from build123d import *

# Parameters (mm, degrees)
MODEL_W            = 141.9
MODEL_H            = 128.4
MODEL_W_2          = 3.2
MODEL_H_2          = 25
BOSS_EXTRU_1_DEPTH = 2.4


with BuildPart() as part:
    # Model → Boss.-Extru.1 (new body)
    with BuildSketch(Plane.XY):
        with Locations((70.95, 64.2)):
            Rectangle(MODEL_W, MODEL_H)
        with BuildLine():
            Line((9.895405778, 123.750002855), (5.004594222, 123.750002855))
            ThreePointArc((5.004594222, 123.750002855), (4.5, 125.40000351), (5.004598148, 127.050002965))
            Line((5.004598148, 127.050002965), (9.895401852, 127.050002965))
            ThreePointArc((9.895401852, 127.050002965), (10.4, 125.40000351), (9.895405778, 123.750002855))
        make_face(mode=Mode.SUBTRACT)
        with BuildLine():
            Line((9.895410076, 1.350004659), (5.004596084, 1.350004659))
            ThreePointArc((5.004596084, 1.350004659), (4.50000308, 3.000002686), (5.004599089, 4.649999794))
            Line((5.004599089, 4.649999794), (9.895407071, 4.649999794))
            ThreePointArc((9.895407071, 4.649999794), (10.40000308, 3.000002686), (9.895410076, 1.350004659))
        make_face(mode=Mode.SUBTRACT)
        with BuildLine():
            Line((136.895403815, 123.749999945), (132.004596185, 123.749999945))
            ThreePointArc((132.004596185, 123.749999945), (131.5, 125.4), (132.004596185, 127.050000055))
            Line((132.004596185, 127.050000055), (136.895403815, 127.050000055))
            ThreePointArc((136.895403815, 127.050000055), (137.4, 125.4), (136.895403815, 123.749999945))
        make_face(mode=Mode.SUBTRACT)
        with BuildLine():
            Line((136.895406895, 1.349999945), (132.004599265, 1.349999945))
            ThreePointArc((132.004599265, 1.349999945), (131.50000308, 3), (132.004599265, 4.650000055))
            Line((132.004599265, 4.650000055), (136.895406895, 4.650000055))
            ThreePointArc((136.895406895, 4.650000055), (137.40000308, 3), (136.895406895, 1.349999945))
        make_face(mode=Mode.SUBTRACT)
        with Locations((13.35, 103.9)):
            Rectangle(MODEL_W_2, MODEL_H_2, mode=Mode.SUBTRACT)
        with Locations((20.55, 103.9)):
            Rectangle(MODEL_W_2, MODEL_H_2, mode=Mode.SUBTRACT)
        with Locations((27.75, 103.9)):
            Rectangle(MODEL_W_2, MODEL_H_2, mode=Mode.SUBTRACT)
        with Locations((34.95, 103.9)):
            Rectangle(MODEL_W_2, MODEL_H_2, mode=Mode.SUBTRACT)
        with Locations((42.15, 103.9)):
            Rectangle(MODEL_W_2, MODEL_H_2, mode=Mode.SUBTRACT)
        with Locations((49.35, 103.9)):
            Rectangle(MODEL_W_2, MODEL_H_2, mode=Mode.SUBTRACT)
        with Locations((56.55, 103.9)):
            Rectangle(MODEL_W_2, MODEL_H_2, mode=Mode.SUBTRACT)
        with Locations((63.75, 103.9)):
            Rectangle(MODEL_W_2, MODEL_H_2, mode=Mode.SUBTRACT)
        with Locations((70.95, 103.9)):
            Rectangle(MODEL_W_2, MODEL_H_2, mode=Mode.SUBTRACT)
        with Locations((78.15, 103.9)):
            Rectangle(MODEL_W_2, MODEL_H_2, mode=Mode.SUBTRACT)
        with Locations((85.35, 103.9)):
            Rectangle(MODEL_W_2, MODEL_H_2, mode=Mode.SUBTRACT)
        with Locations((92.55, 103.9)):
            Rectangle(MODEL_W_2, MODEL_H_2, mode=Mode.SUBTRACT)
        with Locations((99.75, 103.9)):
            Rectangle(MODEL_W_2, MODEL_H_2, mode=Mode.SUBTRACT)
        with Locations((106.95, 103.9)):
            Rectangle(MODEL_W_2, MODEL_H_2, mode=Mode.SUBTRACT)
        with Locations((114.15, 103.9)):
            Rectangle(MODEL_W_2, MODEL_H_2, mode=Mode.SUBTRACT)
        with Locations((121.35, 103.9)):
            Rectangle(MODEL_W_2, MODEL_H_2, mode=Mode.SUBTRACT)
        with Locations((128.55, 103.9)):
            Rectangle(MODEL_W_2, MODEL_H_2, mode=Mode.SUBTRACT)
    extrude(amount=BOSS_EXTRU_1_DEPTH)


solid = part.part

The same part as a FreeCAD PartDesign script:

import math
import FreeCAD as App
import Part
import Sketcher

V = App.Vector

doc = App.newDocument("Part")
body = doc.addObject("PartDesign::Body", "Body")

# Sketch on XY plane
sketch1 = body.newObject("Sketcher::SketchObject", "Sketch")
sketch1.AttachmentSupport = (doc.getObject("XY_Plane"), [""])
sketch1.MapMode = "FlatFace"
sketch1.addGeometry([
    Part.LineSegment(V(0, 128.4, 0), V(0, 0, 0)),  # 0
    Part.LineSegment(V(0, 0, 0), V(141.9, 0, 0)),  # 1
    Part.LineSegment(V(141.9, 0, 0), V(141.9, 128.4, 0)),  # 2
    Part.LineSegment(V(141.9, 128.4, 0), V(0, 128.4, 0)),  # 3
    Part.ArcOfCircle(Part.Circle(V(7.5, 3, 0), V(0, 0, 1), 3), math.radians(-34), math.radians(34)),  # 4
    Part.LineSegment(V(9.9, 1.4, 0), V(5, 1.4, 0)),  # 5
    Part.ArcOfCircle(Part.Circle(V(7.5, 3, 0), V(0, 0, 1), 3), math.radians(146), math.radians(214)),  # 6
    Part.LineSegment(V(5, 4.6, 0), V(9.9, 4.6, 0)),  # 7
    Part.ArcOfCircle(Part.Circle(V(134.5, 3, 0), V(0, 0, 1), 3), math.radians(-34), math.radians(34)),  # 8
    Part.LineSegment(V(136.9, 1.3, 0), V(132, 1.3, 0)),  # 9
    Part.ArcOfCircle(Part.Circle(V(134.5, 3, 0), V(0, 0, 1), 3), math.radians(146), math.radians(214)),  # 10
    Part.LineSegment(V(132, 4.7, 0), V(136.9, 4.7, 0)),  # 11
    Part.LineSegment(V(14.9, 91.4, 0), V(11.8, 91.4, 0)),  # 12
    Part.LineSegment(V(11.8, 91.4, 0), V(11.8, 116.4, 0)),  # 13
    Part.LineSegment(V(11.8, 116.4, 0), V(14.9, 116.4, 0)),  # 14
    Part.LineSegment(V(14.9, 116.4, 0), V(14.9, 91.4, 0)),  # 15
    Part.LineSegment(V(22.1, 91.4, 0), V(18.9, 91.4, 0)),  # 16
    Part.LineSegment(V(18.9, 91.4, 0), V(18.9, 116.4, 0)),  # 17
    Part.LineSegment(V(18.9, 116.4, 0), V(22.1, 116.4, 0)),  # 18
    Part.LineSegment(V(22.1, 116.4, 0), V(22.1, 91.4, 0)),  # 19
    Part.LineSegment(V(29.4, 91.4, 0), V(26.1, 91.4, 0)),  # 20
    Part.LineSegment(V(26.1, 91.4, 0), V(26.1, 116.4, 0)),  # 21
    Part.LineSegment(V(26.1, 116.4, 0), V(29.4, 116.4, 0)),  # 22
    Part.LineSegment(V(29.4, 116.4, 0), V(29.4, 91.4, 0)),  # 23
    Part.LineSegment(V(36.5, 91.4, 0), V(33.4, 91.4, 0)),  # 24
    Part.LineSegment(V(33.4, 91.4, 0), V(33.4, 116.4, 0)),  # 25
    Part.LineSegment(V(33.4, 116.4, 0), V(36.5, 116.4, 0)),  # 26
    Part.LineSegment(V(36.5, 116.4, 0), V(36.5, 91.4, 0)),  # 27
    Part.ArcOfCircle(Part.Circle(V(7.5, 125.4, 0), V(0, 0, 1), 3), math.radians(-34), math.radians(34)),  # 28
    Part.LineSegment(V(9.9, 123.8, 0), V(5, 123.8, 0)),  # 29
    Part.ArcOfCircle(Part.Circle(V(7.5, 125.4, 0), V(0, 0, 1), 3), math.radians(146), math.radians(214)),  # 30
    Part.LineSegment(V(5, 127.1, 0), V(9.9, 127.1, 0)),  # 31
    Part.LineSegment(V(43.8, 91.4, 0), V(40.5, 91.4, 0)),  # 32
    Part.LineSegment(V(40.5, 91.4, 0), V(40.5, 116.4, 0)),  # 33
    Part.LineSegment(V(40.5, 116.4, 0), V(43.8, 116.4, 0)),  # 34
    Part.LineSegment(V(43.8, 116.4, 0), V(43.8, 91.4, 0)),  # 35
    Part.LineSegment(V(51, 91.4, 0), V(47.8, 91.4, 0)),  # 36
    Part.LineSegment(V(47.8, 91.4, 0), V(47.8, 116.4, 0)),  # 37
    Part.LineSegment(V(47.8, 116.4, 0), V(51, 116.4, 0)),  # 38
    Part.LineSegment(V(51, 116.4, 0), V(51, 91.4, 0)),  # 39
    Part.LineSegment(V(58.1, 91.4, 0), V(55, 91.4, 0)),  # 40
    Part.LineSegment(V(55, 91.4, 0), V(55, 116.4, 0)),  # 41
    Part.LineSegment(V(55, 116.4, 0), V(58.1, 116.4, 0)),  # 42
    Part.LineSegment(V(58.1, 116.4, 0), V(58.1, 91.4, 0)),  # 43
    Part.LineSegment(V(65.3, 91.4, 0), V(62.1, 91.4, 0)),  # 44
    Part.LineSegment(V(62.1, 91.4, 0), V(62.1, 116.4, 0)),  # 45
    Part.LineSegment(V(62.1, 116.4, 0), V(65.3, 116.4, 0)),  # 46
    Part.LineSegment(V(65.3, 116.4, 0), V(65.3, 91.4, 0)),  # 47
    Part.LineSegment(V(72.5, 91.4, 0), V(69.3, 91.4, 0)),  # 48
    Part.LineSegment(V(69.3, 91.4, 0), V(69.3, 116.4, 0)),  # 49
    Part.LineSegment(V(69.3, 116.4, 0), V(72.5, 116.4, 0)),  # 50
    Part.LineSegment(V(72.5, 116.4, 0), V(72.5, 91.4, 0)),  # 51
    Part.LineSegment(V(79.8, 91.4, 0), V(76.5, 91.4, 0)),  # 52
    Part.LineSegment(V(76.5, 91.4, 0), V(76.5, 116.4, 0)),  # 53
    Part.LineSegment(V(76.5, 116.4, 0), V(79.8, 116.4, 0)),  # 54
    Part.LineSegment(V(79.8, 116.4, 0), V(79.8, 91.4, 0)),  # 55
    Part.LineSegment(V(87, 91.4, 0), V(83.8, 91.4, 0)),  # 56
    Part.LineSegment(V(83.8, 91.4, 0), V(83.8, 116.4, 0)),  # 57
    Part.LineSegment(V(83.8, 116.4, 0), V(87, 116.4, 0)),  # 58
    Part.LineSegment(V(87, 116.4, 0), V(87, 91.4, 0)),  # 59
    Part.LineSegment(V(94.2, 91.4, 0), V(91, 91.4, 0)),  # 60
    Part.LineSegment(V(91, 91.4, 0), V(91, 116.4, 0)),  # 61
    Part.LineSegment(V(91, 116.4, 0), V(94.2, 116.4, 0)),  # 62
    Part.LineSegment(V(94.2, 116.4, 0), V(94.2, 91.4, 0)),  # 63
    Part.LineSegment(V(101.3, 91.4, 0), V(98.2, 91.4, 0)),  # 64
    Part.LineSegment(V(98.2, 91.4, 0), V(98.2, 116.4, 0)),  # 65
    Part.LineSegment(V(98.2, 116.4, 0), V(101.3, 116.4, 0)),  # 66
    Part.LineSegment(V(101.3, 116.4, 0), V(101.3, 91.4, 0)),  # 67
    Part.LineSegment(V(108.5, 91.4, 0), V(105.3, 91.4, 0)),  # 68
    Part.LineSegment(V(105.3, 91.4, 0), V(105.3, 116.4, 0)),  # 69
    Part.LineSegment(V(105.3, 116.4, 0), V(108.5, 116.4, 0)),  # 70
    Part.LineSegment(V(108.5, 116.4, 0), V(108.5, 91.4, 0)),  # 71
    Part.LineSegment(V(115.8, 91.4, 0), V(112.5, 91.4, 0)),  # 72
    Part.LineSegment(V(112.5, 91.4, 0), V(112.5, 116.4, 0)),  # 73
    Part.LineSegment(V(112.5, 116.4, 0), V(115.8, 116.4, 0)),  # 74
    Part.LineSegment(V(115.8, 116.4, 0), V(115.8, 91.4, 0)),  # 75
    Part.LineSegment(V(123, 91.4, 0), V(119.8, 91.4, 0)),  # 76
    Part.LineSegment(V(119.8, 91.4, 0), V(119.8, 116.4, 0)),  # 77
    Part.LineSegment(V(119.8, 116.4, 0), V(123, 116.4, 0)),  # 78
    Part.LineSegment(V(123, 116.4, 0), V(123, 91.4, 0)),  # 79
    Part.LineSegment(V(130.2, 91.4, 0), V(127, 91.4, 0)),  # 80
    Part.LineSegment(V(127, 91.4, 0), V(127, 116.4, 0)),  # 81
    Part.LineSegment(V(127, 116.4, 0), V(130.2, 116.4, 0)),  # 82
    Part.LineSegment(V(130.2, 116.4, 0), V(130.2, 91.4, 0)),  # 83
    Part.ArcOfCircle(Part.Circle(V(134.4, 125.4, 0), V(0, 0, 1), 3), math.radians(-34), math.radians(34)),  # 84
    Part.LineSegment(V(136.9, 123.7, 0), V(132, 123.7, 0)),  # 85
    Part.ArcOfCircle(Part.Circle(V(134.4, 125.4, 0), V(0, 0, 1), 3), math.radians(146), math.radians(214)),  # 86
    Part.LineSegment(V(132, 127.1, 0), V(136.9, 127.1, 0)),  # 87
], False)
sketch1.addConstraint([
    Sketcher.Constraint("Coincident", 0, 2, 1, 1),
    Sketcher.Constraint("Coincident", 1, 2, 2, 1),
    Sketcher.Constraint("Coincident", 2, 2, 3, 1),
    Sketcher.Constraint("Coincident", 3, 2, 0, 1),
    Sketcher.Constraint("Coincident", 4, 1, 5, 1),
    Sketcher.Constraint("Coincident", 5, 2, 6, 2),
    Sketcher.Constraint("Coincident", 6, 1, 7, 1),
    Sketcher.Constraint("Coincident", 7, 2, 4, 2),
    Sketcher.Constraint("Coincident", 8, 1, 9, 1),
    Sketcher.Constraint("Coincident", 9, 2, 10, 2),
    Sketcher.Constraint("Coincident", 10, 1, 11, 1),
    Sketcher.Constraint("Coincident", 11, 2, 8, 2),
    Sketcher.Constraint("Coincident", 12, 2, 13, 1),
    Sketcher.Constraint("Coincident", 13, 2, 14, 1),
    Sketcher.Constraint("Coincident", 14, 2, 15, 1),
    Sketcher.Constraint("Coincident", 15, 2, 12, 1),
    Sketcher.Constraint("Coincident", 16, 2, 17, 1),
    Sketcher.Constraint("Coincident", 17, 2, 18, 1),
    Sketcher.Constraint("Coincident", 18, 2, 19, 1),
    Sketcher.Constraint("Coincident", 19, 2, 16, 1),
    Sketcher.Constraint("Coincident", 20, 2, 21, 1),
    Sketcher.Constraint("Coincident", 21, 2, 22, 1),
    Sketcher.Constraint("Coincident", 22, 2, 23, 1),
    Sketcher.Constraint("Coincident", 23, 2, 20, 1),
    Sketcher.Constraint("Coincident", 24, 2, 25, 1),
    Sketcher.Constraint("Coincident", 25, 2, 26, 1),
    Sketcher.Constraint("Coincident", 26, 2, 27, 1),
    Sketcher.Constraint("Coincident", 27, 2, 24, 1),
    Sketcher.Constraint("Coincident", 28, 1, 29, 1),
    Sketcher.Constraint("Coincident", 29, 2, 30, 2),
    Sketcher.Constraint("Coincident", 30, 1, 31, 1),
    Sketcher.Constraint("Coincident", 31, 2, 28, 2),
    Sketcher.Constraint("Coincident", 32, 2, 33, 1),
    Sketcher.Constraint("Coincident", 33, 2, 34, 1),
    Sketcher.Constraint("Coincident", 34, 2, 35, 1),
    Sketcher.Constraint("Coincident", 35, 2, 32, 1),
    Sketcher.Constraint("Coincident", 36, 2, 37, 1),
    Sketcher.Constraint("Coincident", 37, 2, 38, 1),
    Sketcher.Constraint("Coincident", 38, 2, 39, 1),
    Sketcher.Constraint("Coincident", 39, 2, 36, 1),
    Sketcher.Constraint("Coincident", 40, 2, 41, 1),
    Sketcher.Constraint("Coincident", 41, 2, 42, 1),
    Sketcher.Constraint("Coincident", 42, 2, 43, 1),
    Sketcher.Constraint("Coincident", 43, 2, 40, 1),
    Sketcher.Constraint("Coincident", 44, 2, 45, 1),
    Sketcher.Constraint("Coincident", 45, 2, 46, 1),
    Sketcher.Constraint("Coincident", 46, 2, 47, 1),
    Sketcher.Constraint("Coincident", 47, 2, 44, 1),
    Sketcher.Constraint("Coincident", 48, 2, 49, 1),
    Sketcher.Constraint("Coincident", 49, 2, 50, 1),
    Sketcher.Constraint("Coincident", 50, 2, 51, 1),
    Sketcher.Constraint("Coincident", 51, 2, 48, 1),
    Sketcher.Constraint("Coincident", 52, 2, 53, 1),
    Sketcher.Constraint("Coincident", 53, 2, 54, 1),
    Sketcher.Constraint("Coincident", 54, 2, 55, 1),
    Sketcher.Constraint("Coincident", 55, 2, 52, 1),
    Sketcher.Constraint("Coincident", 56, 2, 57, 1),
    Sketcher.Constraint("Coincident", 57, 2, 58, 1),
    Sketcher.Constraint("Coincident", 58, 2, 59, 1),
    Sketcher.Constraint("Coincident", 59, 2, 56, 1),
    Sketcher.Constraint("Coincident", 60, 2, 61, 1),
    Sketcher.Constraint("Coincident", 61, 2, 62, 1),
    Sketcher.Constraint("Coincident", 62, 2, 63, 1),
    Sketcher.Constraint("Coincident", 63, 2, 60, 1),
    Sketcher.Constraint("Coincident", 64, 2, 65, 1),
    Sketcher.Constraint("Coincident", 65, 2, 66, 1),
    Sketcher.Constraint("Coincident", 66, 2, 67, 1),
    Sketcher.Constraint("Coincident", 67, 2, 64, 1),
    Sketcher.Constraint("Coincident", 68, 2, 69, 1),
    Sketcher.Constraint("Coincident", 69, 2, 70, 1),
    Sketcher.Constraint("Coincident", 70, 2, 71, 1),
    Sketcher.Constraint("Coincident", 71, 2, 68, 1),
    Sketcher.Constraint("Coincident", 72, 2, 73, 1),
    Sketcher.Constraint("Coincident", 73, 2, 74, 1),
    Sketcher.Constraint("Coincident", 74, 2, 75, 1),
    Sketcher.Constraint("Coincident", 75, 2, 72, 1),
    Sketcher.Constraint("Coincident", 76, 2, 77, 1),
    Sketcher.Constraint("Coincident", 77, 2, 78, 1),
    Sketcher.Constraint("Coincident", 78, 2, 79, 1),
    Sketcher.Constraint("Coincident", 79, 2, 76, 1),
    Sketcher.Constraint("Coincident", 80, 2, 81, 1),
    Sketcher.Constraint("Coincident", 81, 2, 82, 1),
    Sketcher.Constraint("Coincident", 82, 2, 83, 1),
    Sketcher.Constraint("Coincident", 83, 2, 80, 1),
    Sketcher.Constraint("Coincident", 84, 1, 85, 1),
    Sketcher.Constraint("Coincident", 85, 2, 86, 2),
    Sketcher.Constraint("Coincident", 86, 1, 87, 1),
    Sketcher.Constraint("Coincident", 87, 2, 84, 2),
    Sketcher.Constraint("Vertical", 0),
    Sketcher.Constraint("Horizontal", 1),
    Sketcher.Constraint("Vertical", 2),
    Sketcher.Constraint("Horizontal", 3),
    Sketcher.Constraint("Horizontal", 5),
    Sketcher.Constraint("Horizontal", 7),
    Sketcher.Constraint("Horizontal", 9),
    Sketcher.Constraint("Horizontal", 11),
    Sketcher.Constraint("Horizontal", 12),
    Sketcher.Constraint("Vertical", 13),
    Sketcher.Constraint("Horizontal", 14),
    Sketcher.Constraint("Vertical", 15),
    Sketcher.Constraint("Horizontal", 16),
    Sketcher.Constraint("Vertical", 17),
    Sketcher.Constraint("Horizontal", 18),
    Sketcher.Constraint("Vertical", 19),
    Sketcher.Constraint("Horizontal", 20),
    Sketcher.Constraint("Vertical", 21),
    Sketcher.Constraint("Horizontal", 22),
    Sketcher.Constraint("Vertical", 23),
    Sketcher.Constraint("Horizontal", 24),
    Sketcher.Constraint("Vertical", 25),
    Sketcher.Constraint("Horizontal", 26),
    Sketcher.Constraint("Vertical", 27),
    Sketcher.Constraint("Horizontal", 29),
    Sketcher.Constraint("Horizontal", 31),
    Sketcher.Constraint("Horizontal", 32),
    Sketcher.Constraint("Vertical", 33),
    Sketcher.Constraint("Horizontal", 34),
    Sketcher.Constraint("Vertical", 35),
    Sketcher.Constraint("Horizontal", 36),
    Sketcher.Constraint("Vertical", 37),
    Sketcher.Constraint("Horizontal", 38),
    Sketcher.Constraint("Vertical", 39),
    Sketcher.Constraint("Horizontal", 40),
    Sketcher.Constraint("Vertical", 41),
    Sketcher.Constraint("Horizontal", 42),
    Sketcher.Constraint("Vertical", 43),
    Sketcher.Constraint("Horizontal", 44),
    Sketcher.Constraint("Vertical", 45),
    Sketcher.Constraint("Horizontal", 46),
    Sketcher.Constraint("Vertical", 47),
    Sketcher.Constraint("Horizontal", 48),
    Sketcher.Constraint("Vertical", 49),
    Sketcher.Constraint("Horizontal", 50),
    Sketcher.Constraint("Vertical", 51),
    Sketcher.Constraint("Horizontal", 52),
    Sketcher.Constraint("Vertical", 53),
    Sketcher.Constraint("Horizontal", 54),
    Sketcher.Constraint("Vertical", 55),
    Sketcher.Constraint("Horizontal", 56),
    Sketcher.Constraint("Vertical", 57),
    Sketcher.Constraint("Horizontal", 58),
    Sketcher.Constraint("Vertical", 59),
    Sketcher.Constraint("Horizontal", 60),
    Sketcher.Constraint("Vertical", 61),
    Sketcher.Constraint("Horizontal", 62),
    Sketcher.Constraint("Vertical", 63),
    Sketcher.Constraint("Horizontal", 64),
    Sketcher.Constraint("Vertical", 65),
    Sketcher.Constraint("Horizontal", 66),
    Sketcher.Constraint("Vertical", 67),
    Sketcher.Constraint("Horizontal", 68),
    Sketcher.Constraint("Vertical", 69),
    Sketcher.Constraint("Horizontal", 70),
    Sketcher.Constraint("Vertical", 71),
    Sketcher.Constraint("Horizontal", 72),
    Sketcher.Constraint("Vertical", 73),
    Sketcher.Constraint("Horizontal", 74),
    Sketcher.Constraint("Vertical", 75),
    Sketcher.Constraint("Horizontal", 76),
    Sketcher.Constraint("Vertical", 77),
    Sketcher.Constraint("Horizontal", 78),
    Sketcher.Constraint("Vertical", 79),
    Sketcher.Constraint("Horizontal", 80),
    Sketcher.Constraint("Vertical", 81),
    Sketcher.Constraint("Horizontal", 82),
    Sketcher.Constraint("Vertical", 83),
    Sketcher.Constraint("Horizontal", 85),
    Sketcher.Constraint("Horizontal", 87),
    Sketcher.Constraint("Coincident", 0, 2, -1, 1),
    Sketcher.Constraint("Coincident", 6, 3, 4, 3),
    Sketcher.Constraint("Coincident", 10, 3, 8, 3),
    Sketcher.Constraint("Coincident", 30, 3, 28, 3),
    Sketcher.Constraint("Coincident", 86, 3, 84, 3),
    Sketcher.Constraint("Equal", 4, 6),
    Sketcher.Constraint("Equal", 6, 8),
    Sketcher.Constraint("Equal", 8, 10),
    Sketcher.Constraint("Equal", 10, 28),
    Sketcher.Constraint("Equal", 28, 30),
    Sketcher.Constraint("Equal", 30, 84),
    Sketcher.Constraint("Equal", 84, 86),
    Sketcher.Constraint("Horizontal", 6, 3, 8, 3),
    Sketcher.Constraint("Horizontal", 30, 3, 84, 3),
    Sketcher.Constraint("Horizontal", 7, 2, 10, 1),
    Sketcher.Constraint("Horizontal", 15, 2, 16, 2),
    Sketcher.Constraint("Horizontal", 14, 2, 17, 2),
    Sketcher.Constraint("Horizontal", 19, 2, 20, 2),
    Sketcher.Constraint("Horizontal", 18, 2, 21, 2),
    Sketcher.Constraint("Horizontal", 23, 2, 24, 2),
    Sketcher.Constraint("Horizontal", 22, 2, 25, 2),
    Sketcher.Constraint("Horizontal", 27, 2, 32, 2),
    Sketcher.Constraint("Horizontal", 26, 2, 33, 2),
    Sketcher.Constraint("Horizontal", 35, 2, 36, 2),
    Sketcher.Constraint("Horizontal", 34, 2, 37, 2),
    Sketcher.Constraint("Horizontal", 39, 2, 40, 2),
    Sketcher.Constraint("Horizontal", 38, 2, 41, 2),
    Sketcher.Constraint("Horizontal", 43, 2, 44, 2),
    Sketcher.Constraint("Horizontal", 42, 2, 45, 2),
    Sketcher.Constraint("Horizontal", 47, 2, 48, 2),
    Sketcher.Constraint("Horizontal", 46, 2, 49, 2),
    Sketcher.Constraint("Horizontal", 51, 2, 52, 2),
    Sketcher.Constraint("Horizontal", 50, 2, 53, 2),
    Sketcher.Constraint("Horizontal", 55, 2, 56, 2),
    Sketcher.Constraint("Horizontal", 54, 2, 57, 2),
    Sketcher.Constraint("Horizontal", 59, 2, 60, 2),
    Sketcher.Constraint("Horizontal", 58, 2, 61, 2),
    Sketcher.Constraint("Horizontal", 63, 2, 64, 2),
    Sketcher.Constraint("Horizontal", 62, 2, 65, 2),
    Sketcher.Constraint("Horizontal", 67, 2, 68, 2),
    Sketcher.Constraint("Horizontal", 66, 2, 69, 2),
    Sketcher.Constraint("Horizontal", 71, 2, 72, 2),
    Sketcher.Constraint("Horizontal", 70, 2, 73, 2),
    Sketcher.Constraint("Horizontal", 75, 2, 76, 2),
    Sketcher.Constraint("Horizontal", 74, 2, 77, 2),
    Sketcher.Constraint("Horizontal", 79, 2, 80, 2),
    Sketcher.Constraint("Horizontal", 78, 2, 81, 2),
    Sketcher.Constraint("Vertical", 9, 2, 10, 1),
    Sketcher.Constraint("Vertical", 7, 2, 28, 1),
    Sketcher.Constraint("Vertical", 5, 2, 29, 2),
    Sketcher.Constraint("Vertical", 6, 1, 30, 1),
    Sketcher.Constraint("Vertical", 85, 2, 86, 1),
    Sketcher.Constraint("Equal", 14, 16),
    Sketcher.Constraint("Equal", 18, 20),
    Sketcher.Constraint("Equal", 22, 24),
    Sketcher.Constraint("Equal", 26, 32),
    Sketcher.Constraint("Equal", 34, 36),
    Sketcher.Constraint("Equal", 38, 40),
    Sketcher.Constraint("Equal", 42, 44),
    Sketcher.Constraint("Equal", 46, 48),
    Sketcher.Constraint("Equal", 50, 52),
    Sketcher.Constraint("Equal", 54, 56),
    Sketcher.Constraint("Equal", 58, 60),
    Sketcher.Constraint("Equal", 62, 64),
    Sketcher.Constraint("Equal", 66, 68),
    Sketcher.Constraint("Equal", 70, 72),
    Sketcher.Constraint("Equal", 74, 76),
    Sketcher.Constraint("Equal", 78, 80),
    Sketcher.Constraint("Equal", 11, 85),
    Sketcher.Constraint("DistanceY", 13, 1, 13, 2, 25.0),
    Sketcher.Constraint("Radius", 4, 2.95),
    Sketcher.Constraint("DistanceX", 1, 1, 1, 2, 141.9),
    Sketcher.Constraint("DistanceX", 12, 2, 12, 1, 3.2),
    Sketcher.Constraint("DistanceY", 0, 2, 0, 1, 128.4),
    Sketcher.Constraint("DistanceY", -1, 1, 4, 3, 3.0),
    Sketcher.Constraint("DistanceY", -1, 1, 28, 3, 125.4),
    Sketcher.Constraint("DistanceY", -1, 1, 12, 2, 91.4),
    Sketcher.Constraint("DistanceX", -1, 1, 28, 3, 7.45),
    Sketcher.Constraint("DistanceX", -1, 1, 84, 3, 134.45),
    Sketcher.Constraint("DistanceY", -1, 1, 6, 1, 4.65),
    Sketcher.Constraint("DistanceX", -1, 1, 12, 2, 11.75),
    Sketcher.Constraint("DistanceX", -1, 1, 16, 2, 18.95),
    Sketcher.Constraint("DistanceX", -1, 1, 20, 2, 26.15),
    Sketcher.Constraint("DistanceX", -1, 1, 24, 2, 33.35),
    Sketcher.Constraint("DistanceX", -1, 1, 32, 2, 40.55),
    Sketcher.Constraint("DistanceX", -1, 1, 36, 2, 47.75),
    Sketcher.Constraint("DistanceX", -1, 1, 40, 2, 54.95),
    Sketcher.Constraint("DistanceX", -1, 1, 44, 2, 62.15),
    Sketcher.Constraint("DistanceX", -1, 1, 48, 2, 69.35),
    Sketcher.Constraint("DistanceX", -1, 1, 52, 2, 76.55),
    Sketcher.Constraint("DistanceX", -1, 1, 56, 2, 83.75),
    Sketcher.Constraint("DistanceX", -1, 1, 60, 2, 90.95),
    Sketcher.Constraint("DistanceX", -1, 1, 64, 2, 98.15),
    Sketcher.Constraint("DistanceX", -1, 1, 68, 2, 105.35),
    Sketcher.Constraint("DistanceX", -1, 1, 72, 2, 112.55),
    Sketcher.Constraint("DistanceX", -1, 1, 76, 2, 119.75),
    Sketcher.Constraint("DistanceX", -1, 1, 80, 2, 126.95),
    Sketcher.Constraint("DistanceX", 29, 2, 29, 1, 4.890812),
    Sketcher.Constraint("DistanceX", -1, 1, 9, 2, 132.004599),
])
pad1 = body.newObject("PartDesign::Pad", "Pad")
pad1.Profile = sketch1
pad1.Length = 2.4

doc.recompute()
